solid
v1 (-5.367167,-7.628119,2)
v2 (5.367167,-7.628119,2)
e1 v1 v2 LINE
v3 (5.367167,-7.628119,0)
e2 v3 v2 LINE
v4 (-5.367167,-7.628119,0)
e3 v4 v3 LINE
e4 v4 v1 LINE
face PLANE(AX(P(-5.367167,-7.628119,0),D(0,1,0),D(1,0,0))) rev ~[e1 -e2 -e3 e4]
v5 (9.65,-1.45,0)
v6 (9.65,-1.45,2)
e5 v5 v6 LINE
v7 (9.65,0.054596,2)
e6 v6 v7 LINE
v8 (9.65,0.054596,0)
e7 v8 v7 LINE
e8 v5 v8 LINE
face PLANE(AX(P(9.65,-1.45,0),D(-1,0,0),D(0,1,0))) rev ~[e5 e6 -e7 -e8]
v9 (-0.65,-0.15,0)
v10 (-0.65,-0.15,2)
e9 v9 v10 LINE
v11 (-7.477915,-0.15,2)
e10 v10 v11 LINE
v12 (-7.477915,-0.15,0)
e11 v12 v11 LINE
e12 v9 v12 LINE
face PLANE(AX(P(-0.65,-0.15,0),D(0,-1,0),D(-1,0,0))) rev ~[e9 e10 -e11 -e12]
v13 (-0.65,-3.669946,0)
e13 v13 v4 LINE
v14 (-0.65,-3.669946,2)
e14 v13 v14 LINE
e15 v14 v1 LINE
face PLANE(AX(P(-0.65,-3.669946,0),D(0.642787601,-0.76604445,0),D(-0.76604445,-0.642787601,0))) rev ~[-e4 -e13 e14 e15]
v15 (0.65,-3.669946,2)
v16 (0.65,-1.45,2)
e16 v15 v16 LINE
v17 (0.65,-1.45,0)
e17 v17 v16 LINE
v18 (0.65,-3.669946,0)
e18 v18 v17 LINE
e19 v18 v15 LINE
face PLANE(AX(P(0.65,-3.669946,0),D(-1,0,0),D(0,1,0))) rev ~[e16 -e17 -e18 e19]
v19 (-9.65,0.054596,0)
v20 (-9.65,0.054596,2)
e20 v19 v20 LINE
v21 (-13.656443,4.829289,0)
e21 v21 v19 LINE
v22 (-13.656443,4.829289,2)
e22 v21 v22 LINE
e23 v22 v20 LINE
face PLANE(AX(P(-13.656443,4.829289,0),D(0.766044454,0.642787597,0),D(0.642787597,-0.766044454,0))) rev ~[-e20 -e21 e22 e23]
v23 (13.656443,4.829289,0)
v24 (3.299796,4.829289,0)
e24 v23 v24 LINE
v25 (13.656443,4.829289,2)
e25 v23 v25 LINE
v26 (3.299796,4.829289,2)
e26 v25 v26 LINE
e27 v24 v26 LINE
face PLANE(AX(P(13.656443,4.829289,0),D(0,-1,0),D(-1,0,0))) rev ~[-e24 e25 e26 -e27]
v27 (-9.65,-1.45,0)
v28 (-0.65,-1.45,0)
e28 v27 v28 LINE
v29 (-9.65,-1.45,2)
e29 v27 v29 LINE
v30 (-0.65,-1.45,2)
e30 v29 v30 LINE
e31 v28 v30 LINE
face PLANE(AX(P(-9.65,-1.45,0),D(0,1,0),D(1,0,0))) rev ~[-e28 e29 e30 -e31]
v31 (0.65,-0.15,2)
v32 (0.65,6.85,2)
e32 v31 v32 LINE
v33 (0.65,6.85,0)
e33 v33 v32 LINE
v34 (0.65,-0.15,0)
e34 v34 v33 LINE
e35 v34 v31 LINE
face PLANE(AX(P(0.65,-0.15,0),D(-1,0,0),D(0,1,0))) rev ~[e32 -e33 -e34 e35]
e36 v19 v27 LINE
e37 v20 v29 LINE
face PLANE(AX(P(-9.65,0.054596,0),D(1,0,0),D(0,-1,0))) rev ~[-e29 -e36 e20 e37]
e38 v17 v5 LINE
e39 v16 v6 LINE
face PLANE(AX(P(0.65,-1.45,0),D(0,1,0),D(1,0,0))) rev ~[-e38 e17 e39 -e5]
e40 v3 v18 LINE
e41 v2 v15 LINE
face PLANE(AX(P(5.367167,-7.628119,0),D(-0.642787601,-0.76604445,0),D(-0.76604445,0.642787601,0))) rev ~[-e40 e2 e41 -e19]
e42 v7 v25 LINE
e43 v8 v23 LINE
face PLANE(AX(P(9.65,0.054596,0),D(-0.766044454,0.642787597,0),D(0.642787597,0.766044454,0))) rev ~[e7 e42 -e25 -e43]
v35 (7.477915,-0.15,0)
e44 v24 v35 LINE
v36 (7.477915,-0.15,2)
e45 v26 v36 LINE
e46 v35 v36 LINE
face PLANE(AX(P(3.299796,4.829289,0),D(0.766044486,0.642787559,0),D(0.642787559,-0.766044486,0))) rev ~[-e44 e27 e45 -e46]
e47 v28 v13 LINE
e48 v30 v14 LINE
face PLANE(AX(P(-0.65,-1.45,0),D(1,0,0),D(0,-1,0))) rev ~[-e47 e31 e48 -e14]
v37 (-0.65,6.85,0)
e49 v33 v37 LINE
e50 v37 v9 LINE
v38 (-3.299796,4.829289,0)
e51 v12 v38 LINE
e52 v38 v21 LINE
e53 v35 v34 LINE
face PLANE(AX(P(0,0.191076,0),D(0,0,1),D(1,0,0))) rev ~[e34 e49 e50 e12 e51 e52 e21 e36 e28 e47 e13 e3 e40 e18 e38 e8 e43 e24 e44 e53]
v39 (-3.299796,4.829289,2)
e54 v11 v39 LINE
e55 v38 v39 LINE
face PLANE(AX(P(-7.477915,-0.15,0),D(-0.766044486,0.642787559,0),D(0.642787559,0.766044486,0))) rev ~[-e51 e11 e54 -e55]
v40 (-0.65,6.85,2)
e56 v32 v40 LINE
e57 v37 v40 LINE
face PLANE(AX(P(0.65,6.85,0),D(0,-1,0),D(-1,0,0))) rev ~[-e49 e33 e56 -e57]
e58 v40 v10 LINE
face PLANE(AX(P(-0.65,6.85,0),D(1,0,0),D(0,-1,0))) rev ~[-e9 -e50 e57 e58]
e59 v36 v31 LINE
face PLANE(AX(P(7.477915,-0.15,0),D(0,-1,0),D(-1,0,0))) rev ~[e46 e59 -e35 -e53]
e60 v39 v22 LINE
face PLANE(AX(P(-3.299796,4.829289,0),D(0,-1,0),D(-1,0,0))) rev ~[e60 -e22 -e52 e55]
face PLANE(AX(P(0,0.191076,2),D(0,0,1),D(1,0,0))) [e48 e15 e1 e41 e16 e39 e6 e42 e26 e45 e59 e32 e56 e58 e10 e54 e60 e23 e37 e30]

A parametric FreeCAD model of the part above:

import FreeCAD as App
import Part
import Sketcher

V = App.Vector
Q = App.Units.Quantity

doc = App.newDocument("Part")
body = doc.addObject("PartDesign::Body", "Body")

# Sketch on XY plane
sketch1 = body.newObject("Sketcher::SketchObject", "Sketch")
sketch1.AttachmentSupport = (doc.getObject("XY_Plane"), [""])
sketch1.MapMode = "FlatFace"
sketch1.addGeometry(Part.LineSegment(V(-9.7, 0.1, 0), V(-9.7, -1.4, 0)), False)
sketch1.addGeometry(Part.LineSegment(V(-9.7, -1.4, 0), V(-0.7, -1.4, 0)), False)
sketch1.addGeometry(Part.LineSegment(V(-0.7, -1.4, 0), V(-0.7, -3.7, 0)), False)
sketch1.addGeometry(Part.LineSegment(V(-0.7, -3.7, 0), V(-5.4, -7.6, 0)), False)
sketch1.addGeometry(Part.LineSegment(V(-5.4, -7.6, 0), V(5.4, -7.6, 0)), False)
sketch1.addGeometry(Part.LineSegment(V(5.4, -7.6, 0), V(0.7, -3.7, 0)), False)
sketch1.addGeometry(Part.LineSegment(V(0.7, -3.7, 0), V(0.7, -1.4, 0)), False)
sketch1.addGeometry(Part.LineSegment(V(0.7, -1.4, 0), V(9.7, -1.4, 0)), False)
sketch1.addGeometry(Part.LineSegment(V(9.7, -1.4, 0), V(9.7, 0.1, 0)), False)
sketch1.addGeometry(Part.LineSegment(V(9.7, 0.1, 0), V(13.7, 4.8, 0)), False)
sketch1.addGeometry(Part.LineSegment(V(13.7, 4.8, 0), V(3.3, 4.8, 0)), False)
sketch1.addGeometry(Part.LineSegment(V(3.3, 4.8, 0), V(7.5, -0.1, 0)), False)
sketch1.addGeometry(Part.LineSegment(V(7.5, -0.1, 0), V(0.7, -0.1, 0)), False)
sketch1.addGeometry(Part.LineSegment(V(0.7, -0.1, 0), V(0.7, 6.8, 0)), False)
sketch1.addGeometry(Part.LineSegment(V(0.7, 6.8, 0), V(-0.7, 6.8, 0)), False)
sketch1.addGeometry(Part.LineSegment(V(-0.7, 6.8, 0), V(-0.7, -0.1, 0)), False)
sketch1.addGeometry(Part.LineSegment(V(-0.7, -0.1, 0), V(-7.5, -0.1, 0)), False)
sketch1.addGeometry(Part.LineSegment(V(-7.5, -0.1, 0), V(-3.3, 4.8, 0)), False)
sketch1.addGeometry(Part.LineSegment(V(-3.3, 4.8, 0), V(-13.7, 4.8, 0)), False)
sketch1.addGeometry(Part.LineSegment(V(-13.7, 4.8, 0), V(-9.7, 0.1, 0)), False)
sketch1.addConstraint(Sketcher.Constraint("Coincident", 0, 2, 1, 1))
sketch1.addConstraint(Sketcher.Constraint("Coincident", 1, 2, 2, 1))
sketch1.addConstraint(Sketcher.Constraint("Coincident", 2, 2, 3, 1))
sketch1.addConstraint(Sketcher.Constraint("Coincident", 3, 2, 4, 1))
sketch1.addConstraint(Sketcher.Constraint("Coincident", 4, 2, 5, 1))
sketch1.addConstraint(Sketcher.Constraint("Coincident", 5, 2, 6, 1))
sketch1.addConstraint(Sketcher.Constraint("Coincident", 6, 2, 7, 1))
sketch1.addConstraint(Sketcher.Constraint("Coincident", 7, 2, 8, 1))
sketch1.addConstraint(Sketcher.Constraint("Coincident", 8, 2, 9, 1))
sketch1.addConstraint(Sketcher.Constraint("Coincident", 9, 2, 10, 1))
sketch1.addConstraint(Sketcher.Constraint("Coincident", 10, 2, 11, 1))
sketch1.addConstraint(Sketcher.Constraint("Coincident", 11, 2, 12, 1))
sketch1.addConstraint(Sketcher.Constraint("Coincident", 12, 2, 13, 1))
sketch1.addConstraint(Sketcher.Constraint("Coincident", 13, 2, 14, 1))
sketch1.addConstraint(Sketcher.Constraint("Coincident", 14, 2, 15, 1))
sketch1.addConstraint(Sketcher.Constraint("Coincident", 15, 2, 16, 1))
sketch1.addConstraint(Sketcher.Constraint("Coincident", 16, 2, 17, 1))
sketch1.addConstraint(Sketcher.Constraint("Coincident", 17, 2, 18, 1))
sketch1.addConstraint(Sketcher.Constraint("Coincident", 18, 2, 19, 1))
sketch1.addConstraint(Sketcher.Constraint("Coincident", 19, 2, 0, 1))
sketch1.addConstraint(Sketcher.Constraint("Vertical", 0))
sketch1.addConstraint(Sketcher.Constraint("Horizontal", 1))
sketch1.addConstraint(Sketcher.Constraint("Vertical", 2))
sketch1.addConstraint(Sketcher.Constraint("Horizontal", 4))
sketch1.addConstraint(Sketcher.Constraint("Vertical", 6))
sketch1.addConstraint(Sketcher.Constraint("Horizontal", 7))
sketch1.addConstraint(Sketcher.Constraint("Vertical", 8))
sketch1.addConstraint(Sketcher.Constraint("Horizontal", 10))
sketch1.addConstraint(Sketcher.Constraint("Horizontal", 12))
sketch1.addConstraint(Sketcher.Constraint("Vertical", 13))
sketch1.addConstraint(Sketcher.Constraint("Horizontal", 14))
sketch1.addConstraint(Sketcher.Constraint("Vertical", 15))
sketch1.addConstraint(Sketcher.Constraint("Horizontal", 16))
sketch1.addConstraint(Sketcher.Constraint("Horizontal", 18))
sketch1.addConstraint(Sketcher.Constraint("Symmetric", 2, 2, 5, 2, -2))
sketch1.addConstraint(Sketcher.Constraint("Symmetric", 0, 2, 7, 2, -2))
sketch1.addConstraint(Sketcher.Constraint("Symmetric", 12, 2, 15, 2, -2))
sketch1.addConstraint(Sketcher.Constraint("Symmetric", 10, 2, 17, 2, -2))
sketch1.addConstraint(Sketcher.Constraint("Perpendicular", 5, 9))
sketch1.addConstraint(Sketcher.Constraint("Perpendicular", 3, 11))
sketch1.addConstraint(Sketcher.Constraint("Parallel", 9, 17))
sketch1.addConstraint(Sketcher.Constraint("Parallel", 11, 19))
sketch1.addConstraint(Sketcher.Constraint("Horizontal", 8, 2, 19, 2))
sketch1.addConstraint(Sketcher.Constraint("Vertical", 6, 2, 12, 2))
sketch1.addConstraint(Sketcher.Constraint("Equal", 12, 16))
sketch1.addConstraint(Sketcher.Constraint("DistanceX", 1, 1, 1, 2, 9.0))
sketch1.addConstraint(Sketcher.Constraint("DistanceY", 13, 1, 13, 2, 7.0))
sketch1.addConstraint(Sketcher.Constraint("Angle", 3, Q("-140.000001 deg")))
sketch1.addConstraint(Sketcher.Constraint("DistanceX", 14, 2, 14, 1, 1.3))
sketch1.addConstraint(Sketcher.Constraint("Distance", 11, 6.5))
sketch1.addConstraint(Sketcher.Constraint("DistanceY", 7, 2, 11, 2, 1.3))
sketch1.addConstraint(Sketcher.Constraint("DistanceY", 0, 2, -1, 1, 1.45))
sketch1.addConstraint(Sketcher.Constraint("Distance", 9, 6.232919))
sketch1.addConstraint(Sketcher.Constraint("DistanceX", 4, 1, 4, 2, 10.734334))
sketch1.addConstraint(Sketcher.Constraint("DistanceX", 10, 2, 10, 1, 10.356647))
sketch1.addConstraint(Sketcher.Constraint("DistanceY", 2, 2, 2, 1, 2.219946))
pad1 = body.newObject("PartDesign::Pad", "Pad")
pad1.Profile = sketch1
pad1.Length = 2

doc.recompute()
